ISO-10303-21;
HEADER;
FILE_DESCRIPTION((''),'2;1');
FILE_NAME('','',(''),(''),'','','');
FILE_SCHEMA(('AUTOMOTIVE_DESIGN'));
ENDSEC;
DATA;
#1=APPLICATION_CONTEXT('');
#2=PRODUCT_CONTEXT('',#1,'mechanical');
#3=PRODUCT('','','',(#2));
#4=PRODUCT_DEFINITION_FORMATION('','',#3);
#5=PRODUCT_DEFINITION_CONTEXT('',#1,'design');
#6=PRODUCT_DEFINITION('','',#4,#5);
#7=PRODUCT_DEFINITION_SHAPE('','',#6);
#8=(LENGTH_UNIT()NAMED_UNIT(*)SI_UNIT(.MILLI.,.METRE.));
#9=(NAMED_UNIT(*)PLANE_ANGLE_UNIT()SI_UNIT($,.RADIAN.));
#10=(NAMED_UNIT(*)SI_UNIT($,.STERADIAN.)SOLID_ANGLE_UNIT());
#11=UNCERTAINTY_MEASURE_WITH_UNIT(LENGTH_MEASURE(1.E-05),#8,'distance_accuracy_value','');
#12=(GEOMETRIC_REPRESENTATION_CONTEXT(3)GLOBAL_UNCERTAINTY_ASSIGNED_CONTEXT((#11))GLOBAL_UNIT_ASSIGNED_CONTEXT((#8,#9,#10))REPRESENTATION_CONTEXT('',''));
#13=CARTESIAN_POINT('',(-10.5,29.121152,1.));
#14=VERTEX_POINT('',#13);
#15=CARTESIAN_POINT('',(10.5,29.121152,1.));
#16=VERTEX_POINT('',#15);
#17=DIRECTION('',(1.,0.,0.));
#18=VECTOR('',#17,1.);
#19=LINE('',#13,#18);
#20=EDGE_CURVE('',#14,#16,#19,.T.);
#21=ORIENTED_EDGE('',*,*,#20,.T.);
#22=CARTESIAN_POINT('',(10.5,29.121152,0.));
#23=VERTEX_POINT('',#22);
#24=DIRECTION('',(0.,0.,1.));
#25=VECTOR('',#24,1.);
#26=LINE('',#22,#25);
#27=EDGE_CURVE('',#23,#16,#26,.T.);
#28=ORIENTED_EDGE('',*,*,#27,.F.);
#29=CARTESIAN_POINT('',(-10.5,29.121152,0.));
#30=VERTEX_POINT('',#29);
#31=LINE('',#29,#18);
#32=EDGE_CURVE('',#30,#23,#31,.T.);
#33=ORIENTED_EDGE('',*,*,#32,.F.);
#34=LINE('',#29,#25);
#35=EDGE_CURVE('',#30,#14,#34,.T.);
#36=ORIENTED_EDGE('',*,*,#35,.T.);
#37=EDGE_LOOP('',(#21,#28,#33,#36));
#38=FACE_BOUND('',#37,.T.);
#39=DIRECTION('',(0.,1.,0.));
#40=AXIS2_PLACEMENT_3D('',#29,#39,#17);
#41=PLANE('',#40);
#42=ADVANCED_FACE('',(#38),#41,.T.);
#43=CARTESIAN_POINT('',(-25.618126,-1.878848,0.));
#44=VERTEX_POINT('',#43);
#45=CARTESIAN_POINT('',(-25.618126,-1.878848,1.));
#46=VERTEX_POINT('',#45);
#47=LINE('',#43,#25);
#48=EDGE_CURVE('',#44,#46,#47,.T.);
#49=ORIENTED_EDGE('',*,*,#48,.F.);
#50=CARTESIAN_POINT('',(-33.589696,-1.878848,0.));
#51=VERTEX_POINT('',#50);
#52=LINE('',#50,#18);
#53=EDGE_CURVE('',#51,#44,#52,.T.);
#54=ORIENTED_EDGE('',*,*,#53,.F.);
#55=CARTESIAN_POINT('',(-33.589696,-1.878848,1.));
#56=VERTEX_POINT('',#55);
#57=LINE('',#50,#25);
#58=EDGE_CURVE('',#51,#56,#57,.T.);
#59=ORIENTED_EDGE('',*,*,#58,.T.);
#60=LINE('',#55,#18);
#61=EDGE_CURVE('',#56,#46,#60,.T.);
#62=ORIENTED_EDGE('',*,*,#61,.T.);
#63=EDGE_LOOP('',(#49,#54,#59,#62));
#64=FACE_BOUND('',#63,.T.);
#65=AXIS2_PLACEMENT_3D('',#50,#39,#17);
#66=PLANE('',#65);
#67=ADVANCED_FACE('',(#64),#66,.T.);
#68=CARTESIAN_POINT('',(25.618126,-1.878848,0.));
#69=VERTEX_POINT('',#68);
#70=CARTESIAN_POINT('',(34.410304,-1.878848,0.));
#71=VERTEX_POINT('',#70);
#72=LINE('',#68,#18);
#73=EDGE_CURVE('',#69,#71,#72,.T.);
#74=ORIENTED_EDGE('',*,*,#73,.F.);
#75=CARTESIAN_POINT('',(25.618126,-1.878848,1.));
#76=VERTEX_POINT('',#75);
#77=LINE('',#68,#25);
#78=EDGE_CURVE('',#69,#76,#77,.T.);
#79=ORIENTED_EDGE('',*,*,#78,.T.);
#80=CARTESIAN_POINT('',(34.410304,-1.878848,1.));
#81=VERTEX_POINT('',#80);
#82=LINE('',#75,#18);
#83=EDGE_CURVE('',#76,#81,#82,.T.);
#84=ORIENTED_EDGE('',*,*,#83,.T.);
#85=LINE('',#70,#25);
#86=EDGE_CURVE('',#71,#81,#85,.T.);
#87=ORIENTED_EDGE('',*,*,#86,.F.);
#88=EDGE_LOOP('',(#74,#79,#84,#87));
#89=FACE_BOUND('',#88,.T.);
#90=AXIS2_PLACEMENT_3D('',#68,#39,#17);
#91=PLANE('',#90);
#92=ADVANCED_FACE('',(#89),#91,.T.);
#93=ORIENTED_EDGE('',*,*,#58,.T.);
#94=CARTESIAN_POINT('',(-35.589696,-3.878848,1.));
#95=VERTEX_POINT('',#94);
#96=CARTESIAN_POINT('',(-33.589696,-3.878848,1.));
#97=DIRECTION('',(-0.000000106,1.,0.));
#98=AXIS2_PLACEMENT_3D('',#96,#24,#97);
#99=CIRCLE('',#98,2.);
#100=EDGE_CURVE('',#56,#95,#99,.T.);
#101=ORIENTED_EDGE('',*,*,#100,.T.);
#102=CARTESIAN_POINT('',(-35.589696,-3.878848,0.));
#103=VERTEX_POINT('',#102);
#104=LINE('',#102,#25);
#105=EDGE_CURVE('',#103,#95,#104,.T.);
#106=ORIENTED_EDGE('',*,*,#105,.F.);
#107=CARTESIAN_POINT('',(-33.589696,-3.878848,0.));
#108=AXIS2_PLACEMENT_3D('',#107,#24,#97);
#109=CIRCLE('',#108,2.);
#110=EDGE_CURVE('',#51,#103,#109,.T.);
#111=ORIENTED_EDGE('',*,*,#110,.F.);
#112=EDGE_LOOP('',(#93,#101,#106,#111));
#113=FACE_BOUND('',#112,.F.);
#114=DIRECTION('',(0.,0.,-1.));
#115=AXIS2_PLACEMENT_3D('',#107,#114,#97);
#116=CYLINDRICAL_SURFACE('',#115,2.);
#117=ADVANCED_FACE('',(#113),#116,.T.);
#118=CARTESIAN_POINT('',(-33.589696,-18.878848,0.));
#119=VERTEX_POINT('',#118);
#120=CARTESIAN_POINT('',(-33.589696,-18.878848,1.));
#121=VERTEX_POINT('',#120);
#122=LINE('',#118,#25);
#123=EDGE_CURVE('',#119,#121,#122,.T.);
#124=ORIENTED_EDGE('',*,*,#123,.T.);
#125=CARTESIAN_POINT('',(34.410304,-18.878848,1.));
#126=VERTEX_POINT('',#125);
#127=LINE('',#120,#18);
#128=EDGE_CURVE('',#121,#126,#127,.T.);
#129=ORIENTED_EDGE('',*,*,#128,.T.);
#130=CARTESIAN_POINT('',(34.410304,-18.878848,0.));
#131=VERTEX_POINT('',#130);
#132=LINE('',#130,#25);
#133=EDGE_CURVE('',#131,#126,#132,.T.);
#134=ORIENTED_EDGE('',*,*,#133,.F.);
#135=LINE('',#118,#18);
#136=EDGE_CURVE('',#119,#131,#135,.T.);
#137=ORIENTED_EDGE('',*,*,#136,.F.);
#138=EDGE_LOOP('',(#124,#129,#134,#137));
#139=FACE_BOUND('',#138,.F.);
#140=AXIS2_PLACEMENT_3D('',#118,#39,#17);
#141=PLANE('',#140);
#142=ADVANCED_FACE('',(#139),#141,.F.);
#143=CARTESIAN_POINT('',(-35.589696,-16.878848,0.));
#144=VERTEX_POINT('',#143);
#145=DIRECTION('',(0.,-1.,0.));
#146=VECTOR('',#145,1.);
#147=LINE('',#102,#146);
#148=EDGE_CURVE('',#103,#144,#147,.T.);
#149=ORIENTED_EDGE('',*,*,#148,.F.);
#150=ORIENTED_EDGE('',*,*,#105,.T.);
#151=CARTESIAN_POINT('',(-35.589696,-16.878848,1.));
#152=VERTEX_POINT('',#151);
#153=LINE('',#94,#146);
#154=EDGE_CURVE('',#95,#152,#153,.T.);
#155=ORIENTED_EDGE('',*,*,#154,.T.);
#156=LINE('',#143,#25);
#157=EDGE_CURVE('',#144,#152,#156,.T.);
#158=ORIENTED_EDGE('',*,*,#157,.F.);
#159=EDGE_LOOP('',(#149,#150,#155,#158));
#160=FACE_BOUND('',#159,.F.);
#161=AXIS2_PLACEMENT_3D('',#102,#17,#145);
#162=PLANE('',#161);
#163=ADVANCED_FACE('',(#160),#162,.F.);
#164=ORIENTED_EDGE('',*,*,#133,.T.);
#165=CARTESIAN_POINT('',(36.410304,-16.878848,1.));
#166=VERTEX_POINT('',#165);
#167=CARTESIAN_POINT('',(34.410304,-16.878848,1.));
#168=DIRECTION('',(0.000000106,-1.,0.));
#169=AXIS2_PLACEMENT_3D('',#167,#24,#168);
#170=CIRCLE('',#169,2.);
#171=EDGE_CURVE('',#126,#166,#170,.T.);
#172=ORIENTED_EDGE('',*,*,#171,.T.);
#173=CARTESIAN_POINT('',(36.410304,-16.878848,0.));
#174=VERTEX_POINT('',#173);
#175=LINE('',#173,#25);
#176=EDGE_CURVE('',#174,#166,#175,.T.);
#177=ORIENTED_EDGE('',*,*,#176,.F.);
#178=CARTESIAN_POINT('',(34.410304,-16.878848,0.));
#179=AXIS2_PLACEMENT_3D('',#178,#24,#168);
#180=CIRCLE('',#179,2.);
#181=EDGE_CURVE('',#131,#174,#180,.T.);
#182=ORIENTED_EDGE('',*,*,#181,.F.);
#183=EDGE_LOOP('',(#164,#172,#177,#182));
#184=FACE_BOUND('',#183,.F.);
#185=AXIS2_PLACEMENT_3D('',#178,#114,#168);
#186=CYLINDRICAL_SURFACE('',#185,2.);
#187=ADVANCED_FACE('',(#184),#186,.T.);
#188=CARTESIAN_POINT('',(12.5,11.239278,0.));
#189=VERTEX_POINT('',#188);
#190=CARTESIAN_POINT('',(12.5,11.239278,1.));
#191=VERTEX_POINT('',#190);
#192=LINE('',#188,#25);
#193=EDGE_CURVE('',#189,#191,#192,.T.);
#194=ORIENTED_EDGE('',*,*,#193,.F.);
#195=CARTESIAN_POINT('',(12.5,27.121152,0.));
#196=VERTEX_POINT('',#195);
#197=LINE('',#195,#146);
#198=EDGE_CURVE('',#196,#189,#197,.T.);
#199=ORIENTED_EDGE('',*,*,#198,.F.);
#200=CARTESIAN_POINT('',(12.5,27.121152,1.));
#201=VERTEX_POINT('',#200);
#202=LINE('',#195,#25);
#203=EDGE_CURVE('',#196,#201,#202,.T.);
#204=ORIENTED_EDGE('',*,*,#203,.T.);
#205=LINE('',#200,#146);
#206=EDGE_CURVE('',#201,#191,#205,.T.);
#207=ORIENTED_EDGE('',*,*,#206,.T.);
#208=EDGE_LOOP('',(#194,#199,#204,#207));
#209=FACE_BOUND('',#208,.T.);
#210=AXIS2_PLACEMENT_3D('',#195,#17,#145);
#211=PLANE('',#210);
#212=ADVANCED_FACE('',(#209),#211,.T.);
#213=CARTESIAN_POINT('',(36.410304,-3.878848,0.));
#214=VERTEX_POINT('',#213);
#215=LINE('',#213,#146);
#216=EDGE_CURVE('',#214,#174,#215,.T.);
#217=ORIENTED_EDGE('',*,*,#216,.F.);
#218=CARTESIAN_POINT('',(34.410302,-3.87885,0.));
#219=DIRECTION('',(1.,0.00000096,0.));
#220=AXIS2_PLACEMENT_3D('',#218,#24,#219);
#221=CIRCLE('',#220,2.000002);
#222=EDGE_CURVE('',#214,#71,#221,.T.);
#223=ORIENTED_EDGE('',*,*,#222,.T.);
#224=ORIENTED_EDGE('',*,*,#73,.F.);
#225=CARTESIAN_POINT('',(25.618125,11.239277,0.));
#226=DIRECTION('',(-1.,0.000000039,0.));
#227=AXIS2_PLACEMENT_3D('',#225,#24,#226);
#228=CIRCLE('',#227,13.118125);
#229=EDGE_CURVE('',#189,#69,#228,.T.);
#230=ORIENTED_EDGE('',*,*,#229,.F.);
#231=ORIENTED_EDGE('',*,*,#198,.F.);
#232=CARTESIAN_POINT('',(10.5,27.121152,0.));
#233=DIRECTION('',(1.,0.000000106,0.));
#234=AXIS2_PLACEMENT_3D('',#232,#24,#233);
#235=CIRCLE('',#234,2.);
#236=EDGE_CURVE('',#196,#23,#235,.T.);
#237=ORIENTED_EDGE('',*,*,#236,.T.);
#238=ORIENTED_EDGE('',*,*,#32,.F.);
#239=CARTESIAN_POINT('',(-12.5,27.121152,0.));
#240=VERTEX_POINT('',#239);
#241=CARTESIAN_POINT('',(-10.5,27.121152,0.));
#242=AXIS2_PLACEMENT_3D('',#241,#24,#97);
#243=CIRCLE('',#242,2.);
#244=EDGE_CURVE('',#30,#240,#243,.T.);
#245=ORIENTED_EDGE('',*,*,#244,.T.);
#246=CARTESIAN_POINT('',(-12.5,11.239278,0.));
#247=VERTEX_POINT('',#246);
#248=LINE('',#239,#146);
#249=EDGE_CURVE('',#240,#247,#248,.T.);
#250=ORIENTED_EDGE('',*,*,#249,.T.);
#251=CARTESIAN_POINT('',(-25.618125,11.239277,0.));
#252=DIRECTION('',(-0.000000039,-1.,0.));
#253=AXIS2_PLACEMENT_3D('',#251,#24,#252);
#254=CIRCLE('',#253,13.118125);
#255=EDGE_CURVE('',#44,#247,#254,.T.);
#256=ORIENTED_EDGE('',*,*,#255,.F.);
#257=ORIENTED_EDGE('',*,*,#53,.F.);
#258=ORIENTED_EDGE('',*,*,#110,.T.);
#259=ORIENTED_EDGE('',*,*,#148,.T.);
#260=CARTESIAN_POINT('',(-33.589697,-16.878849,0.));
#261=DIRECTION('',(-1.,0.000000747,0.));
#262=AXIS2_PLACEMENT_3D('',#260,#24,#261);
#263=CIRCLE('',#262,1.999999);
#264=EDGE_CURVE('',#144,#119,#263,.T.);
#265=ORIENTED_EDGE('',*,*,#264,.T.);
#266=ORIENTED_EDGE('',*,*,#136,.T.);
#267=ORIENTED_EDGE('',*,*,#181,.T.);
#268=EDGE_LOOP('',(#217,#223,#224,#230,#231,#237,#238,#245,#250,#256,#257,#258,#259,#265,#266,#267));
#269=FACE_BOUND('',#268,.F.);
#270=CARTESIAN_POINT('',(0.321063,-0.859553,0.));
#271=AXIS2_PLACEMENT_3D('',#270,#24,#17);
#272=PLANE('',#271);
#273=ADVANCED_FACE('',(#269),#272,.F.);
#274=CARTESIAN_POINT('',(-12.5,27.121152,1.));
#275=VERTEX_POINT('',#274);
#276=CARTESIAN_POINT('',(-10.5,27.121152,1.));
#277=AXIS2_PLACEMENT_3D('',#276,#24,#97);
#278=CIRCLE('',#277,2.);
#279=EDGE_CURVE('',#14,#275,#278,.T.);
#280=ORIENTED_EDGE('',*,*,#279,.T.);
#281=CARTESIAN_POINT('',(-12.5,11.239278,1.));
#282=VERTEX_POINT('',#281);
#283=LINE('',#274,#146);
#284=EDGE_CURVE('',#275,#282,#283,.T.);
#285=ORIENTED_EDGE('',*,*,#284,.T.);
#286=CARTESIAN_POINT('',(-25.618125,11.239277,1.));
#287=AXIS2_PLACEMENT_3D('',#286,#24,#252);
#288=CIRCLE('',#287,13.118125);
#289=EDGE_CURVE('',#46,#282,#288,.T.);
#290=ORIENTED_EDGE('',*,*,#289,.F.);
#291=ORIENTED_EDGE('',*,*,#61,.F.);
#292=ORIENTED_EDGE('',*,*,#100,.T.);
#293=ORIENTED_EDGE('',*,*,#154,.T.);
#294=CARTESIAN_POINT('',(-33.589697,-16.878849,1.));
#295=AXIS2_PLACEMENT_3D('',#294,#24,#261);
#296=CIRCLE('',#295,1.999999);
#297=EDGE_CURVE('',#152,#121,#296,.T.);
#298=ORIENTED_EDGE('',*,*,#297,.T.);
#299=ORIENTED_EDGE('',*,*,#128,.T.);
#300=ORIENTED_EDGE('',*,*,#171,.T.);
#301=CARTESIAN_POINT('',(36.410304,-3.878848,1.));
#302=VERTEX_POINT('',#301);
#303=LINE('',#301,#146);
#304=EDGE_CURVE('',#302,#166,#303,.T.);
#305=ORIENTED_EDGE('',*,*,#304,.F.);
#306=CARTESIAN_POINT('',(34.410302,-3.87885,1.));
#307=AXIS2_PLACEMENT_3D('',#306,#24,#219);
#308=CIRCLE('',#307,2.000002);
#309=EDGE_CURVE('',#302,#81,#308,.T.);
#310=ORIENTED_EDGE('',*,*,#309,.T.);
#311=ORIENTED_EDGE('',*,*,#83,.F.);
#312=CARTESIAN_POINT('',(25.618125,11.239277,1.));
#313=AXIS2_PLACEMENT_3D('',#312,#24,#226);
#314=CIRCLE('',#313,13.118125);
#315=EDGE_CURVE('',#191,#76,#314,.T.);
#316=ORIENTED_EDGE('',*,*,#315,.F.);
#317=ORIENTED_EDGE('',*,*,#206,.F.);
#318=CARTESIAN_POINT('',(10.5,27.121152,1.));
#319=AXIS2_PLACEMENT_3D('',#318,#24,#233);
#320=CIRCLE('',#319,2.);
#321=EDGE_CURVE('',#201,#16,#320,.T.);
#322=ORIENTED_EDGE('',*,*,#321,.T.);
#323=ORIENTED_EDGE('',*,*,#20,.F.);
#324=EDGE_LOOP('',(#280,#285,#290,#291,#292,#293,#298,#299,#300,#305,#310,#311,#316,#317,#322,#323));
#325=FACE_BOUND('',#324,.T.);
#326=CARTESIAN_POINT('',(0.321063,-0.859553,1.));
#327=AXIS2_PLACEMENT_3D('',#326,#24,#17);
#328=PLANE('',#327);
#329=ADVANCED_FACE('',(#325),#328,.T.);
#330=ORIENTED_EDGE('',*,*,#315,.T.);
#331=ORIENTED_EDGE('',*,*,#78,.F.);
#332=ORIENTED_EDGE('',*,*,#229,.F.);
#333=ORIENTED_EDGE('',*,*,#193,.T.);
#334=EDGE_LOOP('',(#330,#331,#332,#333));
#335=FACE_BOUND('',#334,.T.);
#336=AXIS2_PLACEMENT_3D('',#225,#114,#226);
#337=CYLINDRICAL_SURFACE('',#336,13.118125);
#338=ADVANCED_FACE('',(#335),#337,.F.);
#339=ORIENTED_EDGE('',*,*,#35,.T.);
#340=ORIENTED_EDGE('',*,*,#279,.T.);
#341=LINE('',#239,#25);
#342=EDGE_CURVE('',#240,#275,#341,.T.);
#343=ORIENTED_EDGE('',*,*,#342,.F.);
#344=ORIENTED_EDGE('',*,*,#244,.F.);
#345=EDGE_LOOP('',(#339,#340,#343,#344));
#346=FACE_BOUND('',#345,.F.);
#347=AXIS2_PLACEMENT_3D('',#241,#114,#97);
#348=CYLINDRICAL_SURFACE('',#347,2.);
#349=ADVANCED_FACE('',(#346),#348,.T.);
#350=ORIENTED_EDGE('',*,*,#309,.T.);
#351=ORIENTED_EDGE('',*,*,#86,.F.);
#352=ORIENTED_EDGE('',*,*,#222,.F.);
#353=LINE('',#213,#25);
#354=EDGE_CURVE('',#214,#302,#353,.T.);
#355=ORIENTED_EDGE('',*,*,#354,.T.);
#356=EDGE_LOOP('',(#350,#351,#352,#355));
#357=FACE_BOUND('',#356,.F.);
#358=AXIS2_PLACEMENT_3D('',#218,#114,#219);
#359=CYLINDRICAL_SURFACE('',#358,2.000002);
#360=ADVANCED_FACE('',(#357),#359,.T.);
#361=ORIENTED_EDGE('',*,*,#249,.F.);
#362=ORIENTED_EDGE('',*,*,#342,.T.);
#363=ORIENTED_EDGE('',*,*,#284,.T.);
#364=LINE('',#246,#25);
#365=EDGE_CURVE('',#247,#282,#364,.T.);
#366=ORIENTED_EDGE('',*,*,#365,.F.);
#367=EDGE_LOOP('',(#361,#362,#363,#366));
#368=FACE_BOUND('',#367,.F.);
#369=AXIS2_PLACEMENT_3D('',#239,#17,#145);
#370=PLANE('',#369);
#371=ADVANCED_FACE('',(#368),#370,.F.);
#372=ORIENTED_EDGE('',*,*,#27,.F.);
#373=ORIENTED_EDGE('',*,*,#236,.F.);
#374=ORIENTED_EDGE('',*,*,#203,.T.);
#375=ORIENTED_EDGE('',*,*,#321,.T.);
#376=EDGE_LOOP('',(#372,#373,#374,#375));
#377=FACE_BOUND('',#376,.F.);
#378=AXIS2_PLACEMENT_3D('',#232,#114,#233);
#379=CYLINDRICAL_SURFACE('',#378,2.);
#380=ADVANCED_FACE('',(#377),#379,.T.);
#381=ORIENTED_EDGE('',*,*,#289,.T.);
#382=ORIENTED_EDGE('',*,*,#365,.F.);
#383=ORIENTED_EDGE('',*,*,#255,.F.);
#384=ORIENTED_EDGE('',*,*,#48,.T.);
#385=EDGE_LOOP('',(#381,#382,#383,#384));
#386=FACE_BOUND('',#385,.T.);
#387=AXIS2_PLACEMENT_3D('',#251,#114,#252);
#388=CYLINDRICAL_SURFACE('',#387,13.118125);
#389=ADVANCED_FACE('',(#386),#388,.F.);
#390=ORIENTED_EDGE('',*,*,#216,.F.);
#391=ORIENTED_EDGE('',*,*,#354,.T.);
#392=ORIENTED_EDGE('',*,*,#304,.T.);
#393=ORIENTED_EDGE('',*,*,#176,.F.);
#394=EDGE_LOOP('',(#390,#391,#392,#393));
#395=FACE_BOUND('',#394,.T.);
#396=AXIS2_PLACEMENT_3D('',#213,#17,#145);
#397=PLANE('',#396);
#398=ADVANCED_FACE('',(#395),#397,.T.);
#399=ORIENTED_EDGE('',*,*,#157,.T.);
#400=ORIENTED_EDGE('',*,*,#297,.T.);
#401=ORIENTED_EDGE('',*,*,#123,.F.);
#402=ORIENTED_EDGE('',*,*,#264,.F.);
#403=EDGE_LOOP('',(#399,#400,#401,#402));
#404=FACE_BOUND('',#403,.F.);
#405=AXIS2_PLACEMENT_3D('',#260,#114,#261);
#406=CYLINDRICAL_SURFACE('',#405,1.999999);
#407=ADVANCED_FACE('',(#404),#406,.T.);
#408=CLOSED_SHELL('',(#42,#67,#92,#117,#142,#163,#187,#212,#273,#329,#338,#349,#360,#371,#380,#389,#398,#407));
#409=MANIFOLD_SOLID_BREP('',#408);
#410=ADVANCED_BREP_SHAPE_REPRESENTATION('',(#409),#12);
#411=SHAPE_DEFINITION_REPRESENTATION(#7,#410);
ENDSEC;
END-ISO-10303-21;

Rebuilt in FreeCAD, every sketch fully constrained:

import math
import FreeCAD as App
import Part
import Sketcher
from FreeCAD import Vector

doc = App.newDocument("Part")
body = doc.addObject("PartDesign::Body", "Body")

sketch1 = body.newObject("Sketcher::SketchObject", "Sketch")
sketch1.AttachmentSupport = (doc.getObject("XY_Plane"), [""])
sketch1.MapMode = "FlatFace"
sketch1.addGeometry(Part.LineSegment(Vector(-33.6, -18.9, 0), Vector(34.4, -18.9, 0)), False)
sketch1.addGeometry(Part.ArcOfCircle(Part.Circle(Vector(34.4, -16.9, 0), Vector(0, 0, 1), 2), math.radians(-90), math.radians(0)), False)
sketch1.addGeometry(Part.LineSegment(Vector(36.4, -16.9, 0), Vector(36.4, -3.9, 0)), False)
sketch1.addGeometry(Part.ArcOfCircle(Part.Circle(Vector(34.4, -3.9, 0), Vector(0, 0, 1), 2), math.radians(0), math.radians(90)), False)
sketch1.addGeometry(Part.LineSegment(Vector(34.4, -1.9, 0), Vector(25.6, -1.9, 0)), False)
sketch1.addGeometry(Part.ArcOfCircle(Part.Circle(Vector(25.6, 11.2, 0), Vector(0, 0, 1), 13.1), math.radians(180), math.radians(270)), False)
sketch1.addGeometry(Part.LineSegment(Vector(12.5, 11.2, 0), Vector(12.5, 27.1, 0)), False)
sketch1.addGeometry(Part.ArcOfCircle(Part.Circle(Vector(10.5, 27.1, 0), Vector(0, 0, 1), 2), math.radians(0), math.radians(90)), False)
sketch1.addGeometry(Part.LineSegment(Vector(10.5, 29.1, 0), Vector(-10.5, 29.1, 0)), False)
sketch1.addGeometry(Part.ArcOfCircle(Part.Circle(Vector(-10.5, 27.1, 0), Vector(0, 0, 1), 2), math.radians(90), math.radians(180)), False)
sketch1.addGeometry(Part.LineSegment(Vector(-12.5, 27.1, 0), Vector(-12.5, 11.2, 0)), False)
sketch1.addGeometry(Part.ArcOfCircle(Part.Circle(Vector(-25.6, 11.2, 0), Vector(0, 0, 1), 13.1), math.radians(-90), math.radians(0)), False)
sketch1.addGeometry(Part.LineSegment(Vector(-25.6, -1.9, 0), Vector(-33.6, -1.9, 0)), False)
sketch1.addGeometry(Part.ArcOfCircle(Part.Circle(Vector(-33.6, -3.9, 0), Vector(0, 0, 1), 2), math.radians(90), math.radians(180)), False)
sketch1.addGeometry(Part.LineSegment(Vector(-35.6, -3.9, 0), Vector(-35.6, -16.9, 0)), False)
sketch1.addGeometry(Part.ArcOfCircle(Part.Circle(Vector(-33.6, -16.9, 0), Vector(0, 0, 1), 2), math.radians(180), math.radians(270)), False)
sketch1.addConstraint(Sketcher.Constraint("Tangent", 0, 2, 1, 1))
sketch1.addConstraint(Sketcher.Constraint("Tangent", 1, 2, 2, 1))
sketch1.addConstraint(Sketcher.Constraint("Tangent", 2, 2, 3, 1))
sketch1.addConstraint(Sketcher.Constraint("Tangent", 3, 2, 4, 1))
sketch1.addConstraint(Sketcher.Constraint("Tangent", 4, 2, 5, 2))
sketch1.addConstraint(Sketcher.Constraint("Tangent", 5, 1, 6, 1))
sketch1.addConstraint(Sketcher.Constraint("Tangent", 6, 2, 7, 1))
sketch1.addConstraint(Sketcher.Constraint("Tangent", 7, 2, 8, 1))
sketch1.addConstraint(Sketcher.Constraint("Tangent", 8, 2, 9, 1))
sketch1.addConstraint(Sketcher.Constraint("Tangent", 9, 2, 10, 1))
sketch1.addConstraint(Sketcher.Constraint("Tangent", 10, 2, 11, 2))
sketch1.addConstraint(Sketcher.Constraint("Tangent", 11, 1, 12, 1))
sketch1.addConstraint(Sketcher.Constraint("Tangent", 12, 2, 13, 1))
sketch1.addConstraint(Sketcher.Constraint("Tangent", 13, 2, 14, 1))
sketch1.addConstraint(Sketcher.Constraint("Tangent", 14, 2, 15, 1))
sketch1.addConstraint(Sketcher.Constraint("Tangent", 15, 2, 0, 1))
sketch1.addConstraint(Sketcher.Constraint("Horizontal", 0))
sketch1.addConstraint(Sketcher.Constraint("Vertical", 2))
sketch1.addConstraint(Sketcher.Constraint("Horizontal", 4))
sketch1.addConstraint(Sketcher.Constraint("Vertical", 6))
sketch1.addConstraint(Sketcher.Constraint("Horizontal", 8))
sketch1.addConstraint(Sketcher.Constraint("Vertical", 10))
sketch1.addConstraint(Sketcher.Constraint("Horizontal", 12))
sketch1.addConstraint(Sketcher.Constraint("Vertical", 14))
sketch1.addConstraint(Sketcher.Constraint("Equal", 1, 3))
sketch1.addConstraint(Sketcher.Constraint("Equal", 3, 7))
sketch1.addConstraint(Sketcher.Constraint("Equal", 7, 9))
sketch1.addConstraint(Sketcher.Constraint("Equal", 5, 11))
sketch1.addConstraint(Sketcher.Constraint("Equal", 9, 13))
sketch1.addConstraint(Sketcher.Constraint("Equal", 13, 15))
sketch1.addConstraint(Sketcher.Constraint("Symmetric", 5, 3, 11, 3, -2))
sketch1.addConstraint(Sketcher.Constraint("Radius", 1, 2.0))
sketch1.addConstraint(Sketcher.Constraint("DistanceX", 0, 1, 0, 2, 68.0))
sketch1.addConstraint(Sketcher.Constraint("DistanceX", 8, 2, 8, 1, 21.0))
sketch1.addConstraint(Sketcher.Constraint("DistanceY", 2, 1, 2, 2, 13.0))
sketch1.addConstraint(Sketcher.Constraint("DistanceY", 3, 3, 7, 3, 31.000002))
sketch1.addConstraint(Sketcher.Constraint("Radius", 5, 13.118125))
sketch1.addConstraint(Sketcher.Constraint("DistanceX", 12, 2, 12, 1, 7.97157))
sketch1.addConstraint(Sketcher.Constraint("DistanceY", 3, 3, -1, 1, 3.87885))
pad1 = body.newObject("PartDesign::Pad", "Pad")
pad1.Profile = sketch1
pad1.Length = 1

doc.recompute()
